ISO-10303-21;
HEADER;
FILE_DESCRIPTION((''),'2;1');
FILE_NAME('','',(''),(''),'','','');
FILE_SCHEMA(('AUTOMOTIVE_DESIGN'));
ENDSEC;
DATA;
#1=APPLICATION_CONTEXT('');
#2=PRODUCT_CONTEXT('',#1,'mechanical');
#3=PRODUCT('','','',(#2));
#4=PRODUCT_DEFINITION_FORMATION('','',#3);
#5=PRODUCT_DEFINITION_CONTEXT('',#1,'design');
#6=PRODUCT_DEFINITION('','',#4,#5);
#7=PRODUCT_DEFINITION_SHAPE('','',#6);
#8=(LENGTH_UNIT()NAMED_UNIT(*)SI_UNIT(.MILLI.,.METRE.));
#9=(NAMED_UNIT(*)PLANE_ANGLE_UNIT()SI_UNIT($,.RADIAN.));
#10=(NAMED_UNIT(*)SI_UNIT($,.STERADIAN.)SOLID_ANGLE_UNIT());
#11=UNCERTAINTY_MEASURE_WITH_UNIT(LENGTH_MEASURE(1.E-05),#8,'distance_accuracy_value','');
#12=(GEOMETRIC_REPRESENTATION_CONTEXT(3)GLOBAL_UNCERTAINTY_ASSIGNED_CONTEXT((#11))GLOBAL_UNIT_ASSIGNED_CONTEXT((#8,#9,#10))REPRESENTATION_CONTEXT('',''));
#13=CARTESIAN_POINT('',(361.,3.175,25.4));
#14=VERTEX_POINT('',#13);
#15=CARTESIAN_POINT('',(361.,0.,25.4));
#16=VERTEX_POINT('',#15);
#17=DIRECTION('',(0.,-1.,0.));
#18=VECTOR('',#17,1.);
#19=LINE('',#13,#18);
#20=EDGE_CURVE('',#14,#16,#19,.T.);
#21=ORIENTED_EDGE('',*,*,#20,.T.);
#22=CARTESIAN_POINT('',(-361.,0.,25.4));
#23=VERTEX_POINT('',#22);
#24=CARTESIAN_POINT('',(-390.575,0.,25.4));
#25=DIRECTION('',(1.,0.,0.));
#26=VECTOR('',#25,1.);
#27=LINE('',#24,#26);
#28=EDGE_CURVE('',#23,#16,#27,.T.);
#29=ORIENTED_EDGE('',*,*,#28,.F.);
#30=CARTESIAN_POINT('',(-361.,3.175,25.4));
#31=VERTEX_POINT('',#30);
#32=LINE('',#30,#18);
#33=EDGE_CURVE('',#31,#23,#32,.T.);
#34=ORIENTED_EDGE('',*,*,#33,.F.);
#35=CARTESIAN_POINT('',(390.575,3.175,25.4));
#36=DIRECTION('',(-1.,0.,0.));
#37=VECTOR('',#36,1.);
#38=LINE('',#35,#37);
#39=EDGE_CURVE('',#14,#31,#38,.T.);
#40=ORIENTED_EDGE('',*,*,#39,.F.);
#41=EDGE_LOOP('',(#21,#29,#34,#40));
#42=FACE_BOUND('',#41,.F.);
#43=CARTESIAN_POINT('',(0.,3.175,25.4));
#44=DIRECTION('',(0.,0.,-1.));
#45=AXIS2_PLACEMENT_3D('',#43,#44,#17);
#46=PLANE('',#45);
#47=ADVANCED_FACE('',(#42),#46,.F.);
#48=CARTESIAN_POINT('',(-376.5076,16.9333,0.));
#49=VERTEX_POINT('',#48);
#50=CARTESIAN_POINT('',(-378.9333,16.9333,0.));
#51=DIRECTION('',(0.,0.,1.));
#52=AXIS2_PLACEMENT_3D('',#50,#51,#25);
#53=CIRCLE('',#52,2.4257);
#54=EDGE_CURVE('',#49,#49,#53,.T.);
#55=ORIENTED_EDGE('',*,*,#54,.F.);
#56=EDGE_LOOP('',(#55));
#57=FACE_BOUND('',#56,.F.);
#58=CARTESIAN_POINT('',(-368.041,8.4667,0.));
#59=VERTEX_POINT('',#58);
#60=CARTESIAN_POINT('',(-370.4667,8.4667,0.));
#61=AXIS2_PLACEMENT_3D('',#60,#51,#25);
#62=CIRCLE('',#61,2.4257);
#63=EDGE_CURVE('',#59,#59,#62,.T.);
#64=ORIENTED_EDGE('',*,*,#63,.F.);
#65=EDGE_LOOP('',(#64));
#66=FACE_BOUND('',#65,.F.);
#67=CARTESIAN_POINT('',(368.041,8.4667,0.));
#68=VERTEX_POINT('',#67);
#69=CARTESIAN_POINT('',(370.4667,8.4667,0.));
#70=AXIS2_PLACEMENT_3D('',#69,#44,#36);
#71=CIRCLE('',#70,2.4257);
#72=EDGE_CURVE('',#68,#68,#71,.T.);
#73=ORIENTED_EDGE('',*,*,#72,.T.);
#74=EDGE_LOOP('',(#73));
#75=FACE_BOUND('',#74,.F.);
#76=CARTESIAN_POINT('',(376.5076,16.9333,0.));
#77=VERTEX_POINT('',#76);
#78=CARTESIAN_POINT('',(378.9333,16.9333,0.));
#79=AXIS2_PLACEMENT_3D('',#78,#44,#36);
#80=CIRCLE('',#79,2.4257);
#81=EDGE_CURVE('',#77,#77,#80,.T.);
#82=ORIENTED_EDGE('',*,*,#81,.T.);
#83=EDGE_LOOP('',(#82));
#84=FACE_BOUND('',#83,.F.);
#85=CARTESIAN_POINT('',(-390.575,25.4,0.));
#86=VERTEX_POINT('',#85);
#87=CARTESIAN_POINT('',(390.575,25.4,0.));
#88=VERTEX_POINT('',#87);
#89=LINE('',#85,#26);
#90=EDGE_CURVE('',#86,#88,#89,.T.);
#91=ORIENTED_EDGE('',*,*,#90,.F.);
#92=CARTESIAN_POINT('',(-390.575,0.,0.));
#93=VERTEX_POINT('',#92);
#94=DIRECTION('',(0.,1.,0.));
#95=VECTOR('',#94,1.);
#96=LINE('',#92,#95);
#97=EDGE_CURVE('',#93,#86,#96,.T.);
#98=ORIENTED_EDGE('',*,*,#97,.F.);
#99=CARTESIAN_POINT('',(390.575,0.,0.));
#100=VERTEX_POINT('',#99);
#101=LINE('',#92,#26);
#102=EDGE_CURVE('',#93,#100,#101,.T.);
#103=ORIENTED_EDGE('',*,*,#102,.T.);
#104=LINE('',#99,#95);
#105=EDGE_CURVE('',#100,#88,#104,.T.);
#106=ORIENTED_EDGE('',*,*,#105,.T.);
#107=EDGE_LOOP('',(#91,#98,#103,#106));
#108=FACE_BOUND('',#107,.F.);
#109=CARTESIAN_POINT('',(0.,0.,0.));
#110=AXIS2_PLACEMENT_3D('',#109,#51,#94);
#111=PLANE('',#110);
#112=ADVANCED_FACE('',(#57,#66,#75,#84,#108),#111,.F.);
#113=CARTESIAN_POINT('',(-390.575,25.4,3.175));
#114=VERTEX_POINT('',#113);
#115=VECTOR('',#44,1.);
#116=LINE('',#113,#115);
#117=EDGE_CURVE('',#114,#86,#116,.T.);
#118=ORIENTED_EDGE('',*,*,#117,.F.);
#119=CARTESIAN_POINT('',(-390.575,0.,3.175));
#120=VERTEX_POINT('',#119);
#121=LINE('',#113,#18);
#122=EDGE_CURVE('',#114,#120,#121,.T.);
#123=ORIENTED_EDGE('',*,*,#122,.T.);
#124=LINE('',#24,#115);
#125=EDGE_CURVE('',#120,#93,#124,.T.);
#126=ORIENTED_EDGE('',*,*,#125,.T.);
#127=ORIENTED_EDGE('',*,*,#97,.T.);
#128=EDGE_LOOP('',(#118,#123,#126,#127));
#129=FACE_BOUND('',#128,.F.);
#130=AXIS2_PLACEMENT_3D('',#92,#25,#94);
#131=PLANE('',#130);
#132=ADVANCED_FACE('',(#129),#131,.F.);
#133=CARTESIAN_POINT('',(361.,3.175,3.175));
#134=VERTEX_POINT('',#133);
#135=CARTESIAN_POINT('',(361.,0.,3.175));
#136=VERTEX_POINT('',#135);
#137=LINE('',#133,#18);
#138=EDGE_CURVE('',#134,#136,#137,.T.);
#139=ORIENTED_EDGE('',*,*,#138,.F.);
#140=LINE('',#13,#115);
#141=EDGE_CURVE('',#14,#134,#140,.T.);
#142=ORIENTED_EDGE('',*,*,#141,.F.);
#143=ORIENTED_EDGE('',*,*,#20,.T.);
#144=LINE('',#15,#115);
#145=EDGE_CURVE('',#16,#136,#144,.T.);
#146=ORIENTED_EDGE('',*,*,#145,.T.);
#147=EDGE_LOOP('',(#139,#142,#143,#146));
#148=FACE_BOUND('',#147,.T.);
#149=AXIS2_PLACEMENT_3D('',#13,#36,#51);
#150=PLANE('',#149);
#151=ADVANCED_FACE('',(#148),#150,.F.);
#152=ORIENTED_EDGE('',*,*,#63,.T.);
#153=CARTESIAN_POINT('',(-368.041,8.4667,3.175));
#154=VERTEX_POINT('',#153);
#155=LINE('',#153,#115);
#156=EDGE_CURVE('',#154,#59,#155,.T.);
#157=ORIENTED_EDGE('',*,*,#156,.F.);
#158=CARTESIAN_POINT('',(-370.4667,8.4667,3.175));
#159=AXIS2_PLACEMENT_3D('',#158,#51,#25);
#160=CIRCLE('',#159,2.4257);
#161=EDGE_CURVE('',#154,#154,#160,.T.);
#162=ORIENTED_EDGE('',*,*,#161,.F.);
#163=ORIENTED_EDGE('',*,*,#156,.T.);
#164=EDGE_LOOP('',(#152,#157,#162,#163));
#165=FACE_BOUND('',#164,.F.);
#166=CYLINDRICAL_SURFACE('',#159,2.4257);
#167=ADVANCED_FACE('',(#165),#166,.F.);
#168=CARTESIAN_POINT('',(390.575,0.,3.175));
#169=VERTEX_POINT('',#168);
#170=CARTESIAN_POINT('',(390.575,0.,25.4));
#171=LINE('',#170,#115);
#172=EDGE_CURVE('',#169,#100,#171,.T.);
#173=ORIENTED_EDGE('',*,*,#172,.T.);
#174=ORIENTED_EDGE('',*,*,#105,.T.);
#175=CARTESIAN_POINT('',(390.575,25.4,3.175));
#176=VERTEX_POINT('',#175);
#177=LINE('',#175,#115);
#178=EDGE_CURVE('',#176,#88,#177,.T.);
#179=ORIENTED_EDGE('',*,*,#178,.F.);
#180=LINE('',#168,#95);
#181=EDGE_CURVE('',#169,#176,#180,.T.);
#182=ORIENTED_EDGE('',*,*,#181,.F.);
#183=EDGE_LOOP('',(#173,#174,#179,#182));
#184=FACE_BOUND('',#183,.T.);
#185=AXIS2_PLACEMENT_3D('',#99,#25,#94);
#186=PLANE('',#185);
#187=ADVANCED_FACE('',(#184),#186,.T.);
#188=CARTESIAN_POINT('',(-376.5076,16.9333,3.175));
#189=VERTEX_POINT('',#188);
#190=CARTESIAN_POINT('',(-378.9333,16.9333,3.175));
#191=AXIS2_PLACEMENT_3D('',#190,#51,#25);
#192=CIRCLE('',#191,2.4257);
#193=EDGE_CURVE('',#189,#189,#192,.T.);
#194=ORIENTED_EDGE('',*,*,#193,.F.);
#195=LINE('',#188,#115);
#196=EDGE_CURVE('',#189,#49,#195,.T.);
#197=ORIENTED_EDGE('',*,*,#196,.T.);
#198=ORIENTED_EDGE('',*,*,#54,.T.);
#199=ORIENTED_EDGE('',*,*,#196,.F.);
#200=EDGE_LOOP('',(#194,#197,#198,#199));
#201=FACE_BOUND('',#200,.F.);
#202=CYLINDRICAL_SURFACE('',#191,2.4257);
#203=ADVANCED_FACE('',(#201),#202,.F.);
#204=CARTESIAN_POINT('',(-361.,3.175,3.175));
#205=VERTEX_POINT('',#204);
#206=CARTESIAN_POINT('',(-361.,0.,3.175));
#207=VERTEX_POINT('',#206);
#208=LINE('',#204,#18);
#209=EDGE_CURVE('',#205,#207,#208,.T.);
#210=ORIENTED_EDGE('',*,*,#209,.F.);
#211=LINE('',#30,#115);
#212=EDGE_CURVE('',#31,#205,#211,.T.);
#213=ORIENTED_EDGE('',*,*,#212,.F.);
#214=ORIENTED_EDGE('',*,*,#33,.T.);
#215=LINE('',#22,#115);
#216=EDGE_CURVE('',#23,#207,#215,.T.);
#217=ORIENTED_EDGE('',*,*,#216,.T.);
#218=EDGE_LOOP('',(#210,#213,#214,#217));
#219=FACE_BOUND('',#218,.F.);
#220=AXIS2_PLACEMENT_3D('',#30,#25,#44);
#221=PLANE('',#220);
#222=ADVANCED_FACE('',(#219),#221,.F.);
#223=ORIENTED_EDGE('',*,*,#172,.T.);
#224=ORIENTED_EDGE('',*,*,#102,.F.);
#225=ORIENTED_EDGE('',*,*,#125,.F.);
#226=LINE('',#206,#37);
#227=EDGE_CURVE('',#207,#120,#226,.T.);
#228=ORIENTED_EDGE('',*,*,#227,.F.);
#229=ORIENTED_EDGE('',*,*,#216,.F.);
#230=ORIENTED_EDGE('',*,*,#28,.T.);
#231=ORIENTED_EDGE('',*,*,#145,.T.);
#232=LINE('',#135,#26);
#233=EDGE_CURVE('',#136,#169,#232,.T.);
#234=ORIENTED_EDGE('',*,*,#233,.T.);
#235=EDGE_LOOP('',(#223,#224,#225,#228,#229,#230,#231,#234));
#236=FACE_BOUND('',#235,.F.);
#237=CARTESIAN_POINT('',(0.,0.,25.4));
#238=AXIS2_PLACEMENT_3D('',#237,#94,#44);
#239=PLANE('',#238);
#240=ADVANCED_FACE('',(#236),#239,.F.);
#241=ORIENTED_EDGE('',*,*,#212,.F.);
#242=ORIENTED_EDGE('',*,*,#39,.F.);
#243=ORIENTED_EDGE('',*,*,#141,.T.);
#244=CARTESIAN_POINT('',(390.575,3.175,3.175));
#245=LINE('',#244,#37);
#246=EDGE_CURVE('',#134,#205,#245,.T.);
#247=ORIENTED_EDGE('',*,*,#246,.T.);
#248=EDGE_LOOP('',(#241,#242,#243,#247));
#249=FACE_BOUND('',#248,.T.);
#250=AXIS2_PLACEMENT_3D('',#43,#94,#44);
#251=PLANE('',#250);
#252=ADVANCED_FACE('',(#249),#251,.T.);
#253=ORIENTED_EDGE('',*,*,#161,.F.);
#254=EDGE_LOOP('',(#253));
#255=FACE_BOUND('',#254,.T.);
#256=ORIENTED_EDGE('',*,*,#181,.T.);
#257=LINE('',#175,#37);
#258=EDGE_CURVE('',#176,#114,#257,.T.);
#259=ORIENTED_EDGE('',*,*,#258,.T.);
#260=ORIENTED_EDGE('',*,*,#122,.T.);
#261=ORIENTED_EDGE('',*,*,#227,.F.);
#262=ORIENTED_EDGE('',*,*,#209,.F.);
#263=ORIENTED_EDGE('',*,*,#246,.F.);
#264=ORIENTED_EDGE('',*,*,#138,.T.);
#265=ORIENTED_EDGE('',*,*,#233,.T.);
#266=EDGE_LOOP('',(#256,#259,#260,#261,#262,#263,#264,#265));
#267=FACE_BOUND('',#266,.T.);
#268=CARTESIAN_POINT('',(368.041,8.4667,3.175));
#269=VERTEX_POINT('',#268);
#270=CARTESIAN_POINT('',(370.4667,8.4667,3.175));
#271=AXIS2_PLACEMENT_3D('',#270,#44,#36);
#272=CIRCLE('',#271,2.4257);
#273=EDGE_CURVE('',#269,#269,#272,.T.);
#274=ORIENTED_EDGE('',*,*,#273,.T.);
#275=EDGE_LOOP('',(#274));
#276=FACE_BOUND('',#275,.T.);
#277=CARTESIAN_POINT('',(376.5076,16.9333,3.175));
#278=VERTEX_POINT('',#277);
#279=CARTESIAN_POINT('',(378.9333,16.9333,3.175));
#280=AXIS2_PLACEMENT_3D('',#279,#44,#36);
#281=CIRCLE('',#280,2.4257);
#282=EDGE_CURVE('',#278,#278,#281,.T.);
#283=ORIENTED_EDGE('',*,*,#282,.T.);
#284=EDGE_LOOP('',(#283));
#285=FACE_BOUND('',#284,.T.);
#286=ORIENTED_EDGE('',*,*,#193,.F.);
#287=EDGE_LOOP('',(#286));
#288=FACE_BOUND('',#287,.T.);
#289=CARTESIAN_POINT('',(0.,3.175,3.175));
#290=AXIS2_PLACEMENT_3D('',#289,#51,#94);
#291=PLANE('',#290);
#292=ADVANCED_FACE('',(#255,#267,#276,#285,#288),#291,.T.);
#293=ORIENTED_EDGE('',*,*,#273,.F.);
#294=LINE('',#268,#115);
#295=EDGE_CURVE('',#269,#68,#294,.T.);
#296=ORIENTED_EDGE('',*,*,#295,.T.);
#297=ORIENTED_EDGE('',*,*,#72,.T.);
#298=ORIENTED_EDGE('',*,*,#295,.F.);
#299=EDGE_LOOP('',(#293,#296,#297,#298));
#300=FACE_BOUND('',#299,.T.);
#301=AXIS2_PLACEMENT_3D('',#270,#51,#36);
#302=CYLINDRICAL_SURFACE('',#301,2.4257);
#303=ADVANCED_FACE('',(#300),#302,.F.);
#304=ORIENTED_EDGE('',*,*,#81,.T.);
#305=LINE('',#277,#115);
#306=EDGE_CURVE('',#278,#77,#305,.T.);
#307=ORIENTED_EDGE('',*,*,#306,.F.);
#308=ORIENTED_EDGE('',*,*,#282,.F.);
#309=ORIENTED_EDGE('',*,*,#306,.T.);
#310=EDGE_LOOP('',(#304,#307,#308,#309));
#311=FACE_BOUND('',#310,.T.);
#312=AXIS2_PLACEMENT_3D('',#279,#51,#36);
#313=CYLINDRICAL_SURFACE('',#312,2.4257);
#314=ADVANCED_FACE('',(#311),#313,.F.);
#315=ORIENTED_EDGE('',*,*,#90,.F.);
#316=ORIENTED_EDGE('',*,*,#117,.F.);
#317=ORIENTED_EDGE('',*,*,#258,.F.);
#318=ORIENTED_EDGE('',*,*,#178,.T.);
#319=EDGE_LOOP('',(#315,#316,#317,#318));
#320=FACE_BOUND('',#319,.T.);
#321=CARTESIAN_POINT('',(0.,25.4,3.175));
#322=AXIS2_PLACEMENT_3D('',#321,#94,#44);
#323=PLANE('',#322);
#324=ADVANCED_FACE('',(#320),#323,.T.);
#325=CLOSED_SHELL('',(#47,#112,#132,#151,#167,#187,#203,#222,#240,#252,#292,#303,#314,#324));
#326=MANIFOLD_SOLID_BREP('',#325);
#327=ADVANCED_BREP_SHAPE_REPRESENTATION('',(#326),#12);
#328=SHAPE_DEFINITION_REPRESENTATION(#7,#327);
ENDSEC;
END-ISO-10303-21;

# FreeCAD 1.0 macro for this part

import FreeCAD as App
import Part
import Sketcher
Q = App.Units.Quantity

doc = App.newDocument("Part")
body = doc.addObject("PartDesign::Body", "Body")

# Sketch on YZ plane
sketch1 = doc.addObject("Sketcher::SketchObject", "Sketch")
body.addObject(sketch1)
sketch1.AttachmentSupport = (doc.YZ_Plane, [""])
sketch1.MapMode = "FlatFace"
sketch1.addGeometry(Part.LineSegment(App.Vector(3.2, 25.4, 0), App.Vector(0, 25.4, 0)), False)
sketch1.addGeometry(Part.LineSegment(App.Vector(0, 25.4, 0), App.Vector(0, 0, 0)), False)
sketch1.addGeometry(Part.LineSegment(App.Vector(0, 0, 0), App.Vector(25.4, 0, 0)), False)
sketch1.addGeometry(Part.LineSegment(App.Vector(25.4, 0, 0), App.Vector(25.4, 3.2, 0)), False)
sketch1.addGeometry(Part.LineSegment(App.Vector(25.4, 3.2, 0), App.Vector(3.2, 3.2, 0)), False)
sketch1.addGeometry(Part.LineSegment(App.Vector(3.2, 3.2, 0), App.Vector(3.2, 25.4, 0)), False)
sketch1.addConstraint(Sketcher.Constraint("Coincident", 0, 2, 1, 1))
sketch1.addConstraint(Sketcher.Constraint("Coincident", 1, 2, 2, 1))
sketch1.addConstraint(Sketcher.Constraint("Coincident", 2, 2, 3, 1))
sketch1.addConstraint(Sketcher.Constraint("Coincident", 3, 2, 4, 1))
sketch1.addConstraint(Sketcher.Constraint("Coincident", 4, 2, 5, 1))
sketch1.addConstraint(Sketcher.Constraint("Coincident", 5, 2, 0, 1))
sketch1.addConstraint(Sketcher.Constraint("Horizontal", 0))
sketch1.addConstraint(Sketcher.Constraint("Vertical", 1))
sketch1.addConstraint(Sketcher.Constraint("Horizontal", 2))
sketch1.addConstraint(Sketcher.Constraint("Vertical", 3))
sketch1.addConstraint(Sketcher.Constraint("Horizontal", 4))
sketch1.addConstraint(Sketcher.Constraint("Vertical", 5))
sketch1.addConstraint(Sketcher.Constraint("Coincident", 1, 2, -1, 1))
sketch1.addConstraint(Sketcher.Constraint("Equal", 2, 1))
sketch1.addConstraint(Sketcher.Constraint("Equal", 0, 3))
sketch1.addConstraint(Sketcher.Constraint("DistanceX", 2, 1, 2, 2, Q("1 in")))
sketch1.addConstraint(Sketcher.Constraint("DistanceX", 0, 2, 0, 1, Q("0.125 in")))
pad1 = doc.addObject("PartDesign::Pad", "Pad")
body.addObject(pad1)
pad1.Profile = sketch1
pad1.Length = 781.15
pad1.Midplane = True

# Sketch on XZ plane
sketch2 = doc.addObject("Sketcher::SketchObject", "Sketch001")
body.addObject(sketch2)
sketch2.AttachmentSupport = (doc.XZ_Plane, [""])
sketch2.MapMode = "FlatFace"
sketch2.AttachmentOffset = App.Placement(App.Vector(0, 0, -0.125 * 25.4), App.Rotation())
sketch2.addGeometry(Part.LineSegment(App.Vector(-391, 3, 0), App.Vector(-391, 25, 0)), False)
sketch2.addGeometry(Part.LineSegment(App.Vector(-391, 25, 0), App.Vector(-361, 25, 0)), False)
sketch2.addGeometry(Part.LineSegment(App.Vector(-361, 25, 0), App.Vector(-361, 3, 0)), False)
sketch2.addGeometry(Part.LineSegment(App.Vector(-361, 3, 0), App.Vector(-391, 3, 0)), False)
sketch2.addConstraint(Sketcher.Constraint("Coincident", 0, 2, 1, 1))
sketch2.addConstraint(Sketcher.Constraint("Coincident", 1, 2, 2, 1))
sketch2.addConstraint(Sketcher.Constraint("Coincident", 2, 2, 3, 1))
sketch2.addConstraint(Sketcher.Constraint("Coincident", 3, 2, 0, 1))
sketch2.addConstraint(Sketcher.Constraint("Vertical", 0))
sketch2.addConstraint(Sketcher.Constraint("Horizontal", 1))
sketch2.addConstraint(Sketcher.Constraint("Vertical", 2))
sketch2.addConstraint(Sketcher.Constraint("Horizontal", 3))
sketch2.addConstraint(Sketcher.Constraint("DistanceY", -1, 1, 0, 2, Q("1 in")))
sketch2.addConstraint(Sketcher.Constraint("DistanceX", 1, 1, 1, 2, 29.575))
sketch2.addConstraint(Sketcher.Constraint("DistanceY", 0, 1, 0, 2, Q("0.875 in")))
sketch2.addConstraint(Sketcher.Constraint("DistanceX", 1, 2, -1, 1, Q("14.2126 in")))
pocket1 = doc.addObject("PartDesign::Pocket", "Pocket")
body.addObject(pocket1)
pocket1.Profile = sketch2
pocket1.Length = Q("0.125 in")
pocket1.Reversed = True

# Sketch on XY plane
sketch3 = doc.addObject("Sketcher::SketchObject", "Sketch002")
body.addObject(sketch3)
sketch3.AttachmentSupport = (doc.XY_Plane, [""])
sketch3.MapMode = "FlatFace"
sketch3.AttachmentOffset = App.Placement(App.Vector(0, 0, 0.125 * 25.4), App.Rotation())
sketch3.addGeometry(Part.Circle(App.Vector(-378.9, 16.9, 0), App.Vector(0, 0, 1), 2.4), False)
sketch3.addGeometry(Part.Circle(App.Vector(-370.5, 8.5, 0), App.Vector(0, 0, 1), 2.4), False)
sketch3.addConstraint(Sketcher.Constraint("Equal", 0, 1))
sketch3.addConstraint(Sketcher.Constraint("Diameter", 0, Q("0.191 in")))
sketch3.addConstraint(Sketcher.Constraint("DistanceY", -1, 1, 1, 3, 8.4667))
sketch3.addConstraint(Sketcher.Constraint("DistanceX", 0, 3, 1, 3, 8.4666))
sketch3.addConstraint(Sketcher.Constraint("DistanceY", 1, 3, 0, 3, 8.4666))
sketch3.addConstraint(Sketcher.Constraint("DistanceX", 1, 3, -1, 1, Q("14.5853 in")))
pocket2 = doc.addObject("PartDesign::Pocket", "Pocket001")
body.addObject(pocket2)
pocket2.Profile = sketch3
pocket2.Length = Q("0.125 in")
doc.recompute()

mirrored = doc.addObject("PartDesign::Mirrored", "Mirrored")
body.addObject(mirrored)
mirrored.Originals = [pocket2, pocket1]
mirrored.MirrorPlane = (doc.YZ_Plane, [""])
body.Tip = mirrored

doc.recompute()
